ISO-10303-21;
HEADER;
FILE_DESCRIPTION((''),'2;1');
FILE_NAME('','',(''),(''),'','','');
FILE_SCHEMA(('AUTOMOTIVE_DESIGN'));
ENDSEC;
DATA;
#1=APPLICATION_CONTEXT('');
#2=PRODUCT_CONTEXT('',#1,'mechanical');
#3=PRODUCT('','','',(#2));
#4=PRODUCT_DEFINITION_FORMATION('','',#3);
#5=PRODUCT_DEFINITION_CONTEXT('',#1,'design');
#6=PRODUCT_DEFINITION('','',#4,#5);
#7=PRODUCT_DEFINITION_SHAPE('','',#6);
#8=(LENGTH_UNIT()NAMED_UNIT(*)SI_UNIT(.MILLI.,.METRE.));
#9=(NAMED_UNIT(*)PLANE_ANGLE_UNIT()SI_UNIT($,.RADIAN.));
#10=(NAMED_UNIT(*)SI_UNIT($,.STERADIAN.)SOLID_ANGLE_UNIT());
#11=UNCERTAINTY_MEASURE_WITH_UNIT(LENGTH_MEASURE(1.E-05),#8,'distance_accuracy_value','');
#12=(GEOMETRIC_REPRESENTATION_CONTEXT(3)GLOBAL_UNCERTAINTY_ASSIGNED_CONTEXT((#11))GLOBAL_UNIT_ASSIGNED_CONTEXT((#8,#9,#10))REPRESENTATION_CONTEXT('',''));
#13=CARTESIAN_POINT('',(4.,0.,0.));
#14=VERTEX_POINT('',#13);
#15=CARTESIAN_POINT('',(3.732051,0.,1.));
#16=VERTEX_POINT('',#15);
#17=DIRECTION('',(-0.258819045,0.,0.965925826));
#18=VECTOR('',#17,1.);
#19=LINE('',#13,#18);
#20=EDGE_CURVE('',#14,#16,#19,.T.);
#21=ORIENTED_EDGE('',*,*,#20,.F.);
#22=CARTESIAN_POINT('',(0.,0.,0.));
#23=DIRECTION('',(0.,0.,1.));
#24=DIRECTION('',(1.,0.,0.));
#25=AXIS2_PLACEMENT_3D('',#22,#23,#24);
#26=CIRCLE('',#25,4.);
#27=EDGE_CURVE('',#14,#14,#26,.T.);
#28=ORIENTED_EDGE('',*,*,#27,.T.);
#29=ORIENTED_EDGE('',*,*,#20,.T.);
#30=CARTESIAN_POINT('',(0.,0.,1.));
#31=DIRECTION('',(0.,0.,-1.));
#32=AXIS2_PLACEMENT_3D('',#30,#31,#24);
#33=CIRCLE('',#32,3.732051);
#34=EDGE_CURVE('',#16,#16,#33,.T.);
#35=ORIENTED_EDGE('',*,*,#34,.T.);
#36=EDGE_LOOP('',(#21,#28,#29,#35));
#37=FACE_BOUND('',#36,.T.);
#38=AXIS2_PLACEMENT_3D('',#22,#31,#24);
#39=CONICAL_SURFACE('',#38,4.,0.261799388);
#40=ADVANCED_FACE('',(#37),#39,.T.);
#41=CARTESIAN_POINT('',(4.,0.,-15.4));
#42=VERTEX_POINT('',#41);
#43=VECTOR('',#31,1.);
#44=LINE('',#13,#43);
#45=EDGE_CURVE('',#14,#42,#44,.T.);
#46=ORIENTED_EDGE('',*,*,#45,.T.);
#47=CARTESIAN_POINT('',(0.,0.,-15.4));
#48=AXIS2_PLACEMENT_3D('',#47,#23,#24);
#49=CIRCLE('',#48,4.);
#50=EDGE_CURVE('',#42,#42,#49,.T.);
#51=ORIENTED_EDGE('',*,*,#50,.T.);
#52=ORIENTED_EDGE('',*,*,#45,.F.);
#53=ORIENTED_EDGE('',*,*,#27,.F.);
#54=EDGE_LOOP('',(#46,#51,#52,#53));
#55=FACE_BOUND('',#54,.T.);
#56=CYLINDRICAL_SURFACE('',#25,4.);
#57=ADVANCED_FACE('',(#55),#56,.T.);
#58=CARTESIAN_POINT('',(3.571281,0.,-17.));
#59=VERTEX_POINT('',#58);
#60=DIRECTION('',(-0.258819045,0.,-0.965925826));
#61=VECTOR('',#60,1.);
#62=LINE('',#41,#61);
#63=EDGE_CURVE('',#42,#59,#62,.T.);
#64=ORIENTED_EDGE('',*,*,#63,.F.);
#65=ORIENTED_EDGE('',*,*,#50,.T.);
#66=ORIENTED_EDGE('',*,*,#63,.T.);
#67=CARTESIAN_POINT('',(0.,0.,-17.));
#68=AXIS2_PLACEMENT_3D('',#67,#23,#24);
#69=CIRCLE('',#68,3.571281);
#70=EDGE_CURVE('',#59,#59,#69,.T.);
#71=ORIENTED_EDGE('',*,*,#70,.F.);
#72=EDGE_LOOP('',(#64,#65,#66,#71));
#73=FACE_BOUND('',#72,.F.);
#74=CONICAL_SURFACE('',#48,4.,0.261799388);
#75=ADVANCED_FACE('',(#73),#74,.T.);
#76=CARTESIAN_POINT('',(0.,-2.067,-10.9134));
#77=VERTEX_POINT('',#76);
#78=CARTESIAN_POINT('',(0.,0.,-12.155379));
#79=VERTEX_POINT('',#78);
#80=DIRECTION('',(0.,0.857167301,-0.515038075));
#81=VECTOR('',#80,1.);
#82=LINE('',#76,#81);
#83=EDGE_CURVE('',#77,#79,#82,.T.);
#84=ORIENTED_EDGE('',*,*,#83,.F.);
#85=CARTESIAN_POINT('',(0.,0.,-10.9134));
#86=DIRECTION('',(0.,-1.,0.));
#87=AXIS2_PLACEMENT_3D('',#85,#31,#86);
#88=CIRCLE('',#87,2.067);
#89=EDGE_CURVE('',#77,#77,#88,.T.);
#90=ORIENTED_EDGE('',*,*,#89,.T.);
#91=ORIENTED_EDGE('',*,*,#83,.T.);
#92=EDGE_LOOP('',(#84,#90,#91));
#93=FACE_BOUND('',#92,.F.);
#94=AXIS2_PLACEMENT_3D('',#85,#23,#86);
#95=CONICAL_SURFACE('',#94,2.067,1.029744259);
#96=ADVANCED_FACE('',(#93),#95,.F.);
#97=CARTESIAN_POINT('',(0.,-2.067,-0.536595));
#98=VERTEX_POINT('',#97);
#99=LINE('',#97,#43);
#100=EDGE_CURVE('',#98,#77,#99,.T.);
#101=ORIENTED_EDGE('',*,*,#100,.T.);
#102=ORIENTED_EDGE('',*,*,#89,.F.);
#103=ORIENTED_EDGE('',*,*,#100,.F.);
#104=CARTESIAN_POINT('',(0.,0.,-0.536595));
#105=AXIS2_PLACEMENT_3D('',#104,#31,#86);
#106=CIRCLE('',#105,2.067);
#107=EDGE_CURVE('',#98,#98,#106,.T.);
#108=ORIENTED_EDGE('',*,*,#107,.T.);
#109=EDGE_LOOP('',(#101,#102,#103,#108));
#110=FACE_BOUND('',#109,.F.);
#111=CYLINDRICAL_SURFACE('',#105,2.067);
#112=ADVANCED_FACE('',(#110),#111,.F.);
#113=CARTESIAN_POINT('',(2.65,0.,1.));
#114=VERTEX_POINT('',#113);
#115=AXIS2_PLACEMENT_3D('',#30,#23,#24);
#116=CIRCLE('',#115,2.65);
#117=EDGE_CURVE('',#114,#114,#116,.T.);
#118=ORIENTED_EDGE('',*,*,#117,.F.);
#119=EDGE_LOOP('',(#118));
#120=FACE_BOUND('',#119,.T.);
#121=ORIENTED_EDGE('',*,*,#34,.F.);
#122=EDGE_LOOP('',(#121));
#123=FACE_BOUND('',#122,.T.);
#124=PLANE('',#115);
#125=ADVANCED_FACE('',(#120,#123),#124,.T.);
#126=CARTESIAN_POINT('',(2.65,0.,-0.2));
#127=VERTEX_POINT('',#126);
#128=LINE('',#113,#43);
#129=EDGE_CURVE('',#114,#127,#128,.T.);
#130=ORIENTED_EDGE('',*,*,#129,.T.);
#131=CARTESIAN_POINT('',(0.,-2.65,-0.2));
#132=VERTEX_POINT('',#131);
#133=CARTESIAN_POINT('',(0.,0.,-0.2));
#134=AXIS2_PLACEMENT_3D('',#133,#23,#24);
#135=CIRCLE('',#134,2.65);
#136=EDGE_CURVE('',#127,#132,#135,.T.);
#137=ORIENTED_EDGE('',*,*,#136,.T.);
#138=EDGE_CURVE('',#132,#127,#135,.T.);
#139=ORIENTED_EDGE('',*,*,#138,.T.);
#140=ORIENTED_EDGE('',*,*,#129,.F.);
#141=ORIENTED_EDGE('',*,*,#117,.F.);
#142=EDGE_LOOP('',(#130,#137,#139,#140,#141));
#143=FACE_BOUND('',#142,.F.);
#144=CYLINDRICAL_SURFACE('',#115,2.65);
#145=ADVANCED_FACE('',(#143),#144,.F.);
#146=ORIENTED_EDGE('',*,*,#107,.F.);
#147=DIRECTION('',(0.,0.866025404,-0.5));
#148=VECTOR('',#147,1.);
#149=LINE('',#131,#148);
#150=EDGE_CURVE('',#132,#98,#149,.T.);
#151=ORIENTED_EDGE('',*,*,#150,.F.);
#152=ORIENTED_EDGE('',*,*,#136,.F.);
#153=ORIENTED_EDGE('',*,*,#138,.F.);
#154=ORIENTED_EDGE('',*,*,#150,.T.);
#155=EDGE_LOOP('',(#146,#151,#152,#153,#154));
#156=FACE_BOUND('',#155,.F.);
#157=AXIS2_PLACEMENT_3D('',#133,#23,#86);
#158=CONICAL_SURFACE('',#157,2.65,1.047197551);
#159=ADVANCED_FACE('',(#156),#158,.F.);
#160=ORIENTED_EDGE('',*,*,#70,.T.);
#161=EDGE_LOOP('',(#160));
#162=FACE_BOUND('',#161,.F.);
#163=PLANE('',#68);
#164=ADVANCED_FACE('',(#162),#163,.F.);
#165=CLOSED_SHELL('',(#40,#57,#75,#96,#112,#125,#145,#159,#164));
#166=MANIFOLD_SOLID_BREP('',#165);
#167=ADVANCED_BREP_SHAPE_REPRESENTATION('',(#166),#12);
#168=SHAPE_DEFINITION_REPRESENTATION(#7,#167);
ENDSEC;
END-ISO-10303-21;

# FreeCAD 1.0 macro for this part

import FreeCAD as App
import Part
import Sketcher

V = App.Vector


def edges_at(feature, points):
    """Names of the edges that pass closest to the given points."""
    edges = feature.Shape.Edges
    near = lambda p: min(range(len(edges)), key=lambda i: edges[i].distToShape(Part.Vertex(*p))[0])
    return sorted({f"Edge{near(p) + 1}" for p in points})

doc = App.newDocument("Part")
body = doc.addObject("PartDesign::Body", "Body")

sketch1 = doc.addObject("Sketcher::SketchObject", "Sketch")
body.addObject(sketch1)
sketch1.AttachmentSupport = (doc.XY_Plane, [""])
sketch1.MapMode = "FlatFace"
sketch1.addGeometry(Part.Circle(V(0, 0, 0), V(0, 0, 1), 4), False)
sketch1.addConstraint([
    Sketcher.Constraint("Coincident", 0, 3, -1, 1),
    Sketcher.Constraint("Diameter", 0, 8.0),
])
pad1 = doc.addObject("PartDesign::Pad", "Pad")
body.addObject(pad1)
pad1.Profile = sketch1
pad1.Length = 17
pad1.Reversed = True
doc.recompute()

chamfer = doc.addObject("PartDesign::Chamfer", "Chamfer")
body.addObject(chamfer)
chamfer.Base = (pad1, edges_at(pad1, [(-4, 0, -17)]))
chamfer.ChamferType = "Distance and Angle"
chamfer.Size = 1.6
chamfer.Angle = 15

sketch2 = doc.addObject("Sketcher::SketchObject", "Sketch001")
body.addObject(sketch2)
sketch2.AttachmentSupport = (doc.XY_Plane, [""])
sketch2.MapMode = "FlatFace"
sketch2.addGeometry(Part.Circle(V(0, 0, 0), V(0, 0, 1), 4), False)
sketch2.addConstraint([
    Sketcher.Constraint("Coincident", 0, 3, -1, 1),
    Sketcher.Constraint("Diameter", 0, 8.0),
])
pad2 = doc.addObject("PartDesign::Pad", "Pad001")
body.addObject(pad2)
pad2.Profile = sketch2
pad2.Length = 1
pad2.TaperAngle = -15

sketch3 = doc.addObject("Sketcher::SketchObject", "Sketch002")
body.addObject(sketch3)
sketch3.AttachmentSupport = (doc.XY_Plane, [""])
sketch3.MapMode = "FlatFace"
sketch3.AttachmentOffset = App.Placement(V(0, 0, 1), App.Rotation())
sketch3.addGeometry(Part.Circle(V(0, 0, 0), V(0, 0, 1), 2.6), False)
sketch3.addConstraint([
    Sketcher.Constraint("Coincident", 0, 3, -1, 1),
    Sketcher.Constraint("Diameter", 0, 5.3),
])
pocket1 = doc.addObject("PartDesign::Pocket", "Pocket")
body.addObject(pocket1)
pocket1.Profile = sketch3
pocket1.Length = 1.2

sketch4 = doc.addObject("Sketcher::SketchObject", "Sketch003")
body.addObject(sketch4)
sketch4.AttachmentSupport = (doc.XY_Plane, [""])
sketch4.MapMode = "FlatFace"
sketch4.AttachmentOffset = App.Placement(V(0, 0, -0.2), App.Rotation())
sketch4.addGeometry(Part.Circle(V(0, 0, 0), V(0, 0, 1), 2.1), False)
sketch4.addConstraint([
    Sketcher.Constraint("Coincident", 0, 3, -1, 1),
    Sketcher.Constraint("Diameter", 0, 4.134),
])
doc.recompute()
hole = doc.addObject("PartDesign::Hole", "Hole")
body.addObject(hole)
hole.Profile = sketch4
hole.ThreadType = "None"
hole.Diameter = 4.134
hole.DepthType = "Dimension"
hole.Depth = 10.7134
hole.DrillPoint = "Angled"
hole.DrillPointAngle = 118
hole.HoleCutType = "Countersink"
hole.HoleCutDiameter = 5.3
hole.HoleCutCountersinkAngle = 120

doc.recompute()
